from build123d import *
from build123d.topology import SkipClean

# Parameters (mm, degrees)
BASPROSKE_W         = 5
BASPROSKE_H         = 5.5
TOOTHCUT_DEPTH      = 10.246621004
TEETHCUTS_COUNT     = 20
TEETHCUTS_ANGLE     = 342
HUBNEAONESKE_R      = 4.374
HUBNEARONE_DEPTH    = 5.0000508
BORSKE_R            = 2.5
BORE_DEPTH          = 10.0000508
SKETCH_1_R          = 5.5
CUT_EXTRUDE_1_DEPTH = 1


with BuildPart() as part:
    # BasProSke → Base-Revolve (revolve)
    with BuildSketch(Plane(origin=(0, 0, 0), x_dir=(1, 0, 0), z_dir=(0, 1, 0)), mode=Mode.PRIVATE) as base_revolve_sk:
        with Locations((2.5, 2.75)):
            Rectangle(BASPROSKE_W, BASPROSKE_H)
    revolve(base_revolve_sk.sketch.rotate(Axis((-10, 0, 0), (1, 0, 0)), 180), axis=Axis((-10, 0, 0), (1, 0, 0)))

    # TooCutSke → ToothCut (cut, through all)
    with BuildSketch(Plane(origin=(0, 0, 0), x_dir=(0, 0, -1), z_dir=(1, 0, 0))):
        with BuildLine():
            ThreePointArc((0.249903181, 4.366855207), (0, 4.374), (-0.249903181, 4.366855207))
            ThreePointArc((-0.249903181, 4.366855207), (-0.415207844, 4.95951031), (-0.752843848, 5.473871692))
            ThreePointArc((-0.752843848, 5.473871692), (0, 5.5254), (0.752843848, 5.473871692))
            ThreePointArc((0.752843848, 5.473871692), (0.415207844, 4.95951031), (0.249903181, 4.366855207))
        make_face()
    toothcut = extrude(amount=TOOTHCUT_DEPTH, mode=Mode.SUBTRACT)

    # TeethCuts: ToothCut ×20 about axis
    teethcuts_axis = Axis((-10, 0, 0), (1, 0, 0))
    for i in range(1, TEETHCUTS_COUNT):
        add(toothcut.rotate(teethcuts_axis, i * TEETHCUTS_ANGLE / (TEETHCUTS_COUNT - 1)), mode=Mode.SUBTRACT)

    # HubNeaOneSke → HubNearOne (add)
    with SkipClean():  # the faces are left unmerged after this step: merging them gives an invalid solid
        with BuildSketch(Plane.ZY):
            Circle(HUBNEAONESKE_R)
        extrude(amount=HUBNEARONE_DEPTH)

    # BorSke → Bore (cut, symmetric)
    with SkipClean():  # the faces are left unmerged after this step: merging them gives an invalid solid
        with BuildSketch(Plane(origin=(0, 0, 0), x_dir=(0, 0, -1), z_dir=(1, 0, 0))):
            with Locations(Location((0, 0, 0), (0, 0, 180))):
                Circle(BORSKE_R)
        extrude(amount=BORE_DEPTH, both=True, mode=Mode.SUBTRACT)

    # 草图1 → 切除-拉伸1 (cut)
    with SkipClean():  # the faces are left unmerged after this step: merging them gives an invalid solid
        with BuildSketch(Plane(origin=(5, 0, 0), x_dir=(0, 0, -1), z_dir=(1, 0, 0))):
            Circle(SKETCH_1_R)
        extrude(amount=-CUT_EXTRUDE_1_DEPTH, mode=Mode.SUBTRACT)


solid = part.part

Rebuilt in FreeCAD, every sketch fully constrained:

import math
import FreeCAD as App
import Part
import Sketcher

V = App.Vector
Q = App.Units.Quantity

doc = App.newDocument("Part")
body = doc.addObject("PartDesign::Body", "Body")

sketch1 = body.newObject("Sketcher::SketchObject", "Sketch")
sketch1.AttachmentSupport = (doc.getObject("XZ_Plane"), [""])
sketch1.MapMode = "FlatFace"
sketch1.addGeometry([
    Part.LineSegment(V(0, -5.5, 0), V(0, 0, 0)),
    Part.LineSegment(V(0, 0, 0), V(5, 0, 0)),
    Part.LineSegment(V(5, 0, 0), V(5, -5.5, 0)),
    Part.LineSegment(V(5, -5.5, 0), V(0, -5.5, 0)),
], False)
sketch1.addConstraint([
    Sketcher.Constraint("Coincident", 0, 2, 1, 1),
    Sketcher.Constraint("Coincident", 1, 2, 2, 1),
    Sketcher.Constraint("Coincident", 2, 2, 3, 1),
    Sketcher.Constraint("Coincident", 3, 2, 0, 1),
    Sketcher.Constraint("Vertical", 0),
    Sketcher.Constraint("Horizontal", 1),
    Sketcher.Constraint("Vertical", 2),
    Sketcher.Constraint("Horizontal", 3),
    Sketcher.Constraint("Coincident", 0, 2, -1, 1),
    Sketcher.Constraint("DistanceX", 1, 1, 1, 2, Q("5 mm")),
    Sketcher.Constraint("DistanceY", 0, 1, 0, 2, Q("5.5 mm")),
])
revolution = body.newObject("PartDesign::Revolution", "Revolution")
revolution.Profile = sketch1
revolution.ReferenceAxis = (sketch1, ["H_Axis"])
revolution.Angle = 360

sketch2 = body.newObject("Sketcher::SketchObject", "Sketch001")
sketch2.AttachmentSupport = (doc.getObject("YZ_Plane"), [""])
sketch2.MapMode = "FlatFace"
sketch2.addGeometry([
    Part.ArcOfCircle(Part.Circle(V(0, 0, 0), V(0, 0, 1), 4.374), math.radians(-3.275308), math.radians(3.275308)),
    Part.ArcOfCircle(Part.Circle(V(4.132243, -2.236095, 0), V(0, 0, 1), 2), math.radians(47.870067), math.radians(83.263356)),
    Part.ArcOfCircle(Part.Circle(V(0, 0, 0), V(0, 0, 1), 5.5254), math.radians(-7.830992), math.radians(7.830992)),
    Part.ArcOfCircle(Part.Circle(V(4.132243, 2.236095, 0), V(0, 0, 1), 2), math.radians(-83.263356), math.radians(-47.870067)),
], False)
sketch2.addConstraint([
    Sketcher.Constraint("Coincident", 0, 1, 1, 2),
    Sketcher.Constraint("Coincident", 1, 1, 2, 1),
    Sketcher.Constraint("Coincident", 2, 2, 3, 2),
    Sketcher.Constraint("Coincident", 3, 1, 0, 2),
    Sketcher.Constraint("Coincident", 0, 3, -1, 1),
    Sketcher.Constraint("Coincident", 2, 3, -1, 1),
    Sketcher.Constraint("Equal", 1, 3),
    Sketcher.Constraint("Symmetric", 1, 3, 3, 3, -1),
    Sketcher.Constraint("Radius", 1, Q("2 mm")),
    Sketcher.Constraint("Radius", 0, Q("4.374 mm")),
    Sketcher.Constraint("Radius", 2, Q("5.5254 mm")),
    Sketcher.Constraint("DistanceY", 0, 1, 3, 3, Q("2.485998 mm")),
    Sketcher.Constraint("DistanceX", -1, 1, 1, 1, Q("5.473872 mm")),
])
pocket1 = body.newObject("PartDesign::Pocket", "Pocket")
pocket1.Profile = sketch2
pocket1.Type = "ThroughAll"
pocket1.Reversed = True
doc.recompute()

polarpattern = body.newObject("PartDesign::PolarPattern", "PolarPattern")
polarpattern.Originals = [pocket1]
polarpattern.Axis = (doc.getObject("X_Axis"), [""])
polarpattern.Angle = 360
polarpattern.Occurrences = 20
body.Tip = polarpattern

sketch3 = body.newObject("Sketcher::SketchObject", "Sketch002")
sketch3.AttachmentSupport = (doc.getObject("YZ_Plane"), [""])
sketch3.MapMode = "FlatFace"
sketch3.addGeometry(Part.Circle(V(0, 0, 0), V(0, 0, 1), 4.374), False)
sketch3.addConstraint([
    Sketcher.Constraint("Coincident", 0, 3, -1, 1),
    Sketcher.Constraint("Diameter", 0, Q("8.748 mm")),
])
pad1 = body.newObject("PartDesign::Pad", "Pad")
pad1.Profile = sketch3
pad1.Length = 5.000051
pad1.Reversed = True

sketch4 = body.newObject("Sketcher::SketchObject", "Sketch003")
sketch4.AttachmentSupport = (doc.getObject("YZ_Plane"), [""])
sketch4.MapMode = "FlatFace"
sketch4.addGeometry(Part.Circle(V(0, 0, 0), V(0, 0, 1), 2.5), False)
sketch4.addConstraint([
    Sketcher.Constraint("Coincident", 0, 3, -1, 1),
    Sketcher.Constraint("Diameter", 0, Q("5 mm")),
])
pocket2 = body.newObject("PartDesign::Pocket", "Pocket001")
pocket2.Profile = sketch4
pocket2.Length = 20.000102
pocket2.Midplane = True

sketch5 = body.newObject("Sketcher::SketchObject", "Sketch004")
sketch5.AttachmentSupport = (doc.getObject("YZ_Plane"), [""])
sketch5.MapMode = "FlatFace"
sketch5.AttachmentOffset = App.Placement(V(0, 0, 5), App.Rotation())
sketch5.addGeometry(Part.Circle(V(0, 0, 0), V(0, 0, 1), 5.5), False)
sketch5.addConstraint([
    Sketcher.Constraint("Coincident", 0, 3, -1, 1),
    Sketcher.Constraint("Diameter", 0, Q("11 mm")),
])
pocket3 = body.newObject("PartDesign::Pocket", "Pocket002")
pocket3.Profile = sketch5
pocket3.Length = 1

doc.recompute()
